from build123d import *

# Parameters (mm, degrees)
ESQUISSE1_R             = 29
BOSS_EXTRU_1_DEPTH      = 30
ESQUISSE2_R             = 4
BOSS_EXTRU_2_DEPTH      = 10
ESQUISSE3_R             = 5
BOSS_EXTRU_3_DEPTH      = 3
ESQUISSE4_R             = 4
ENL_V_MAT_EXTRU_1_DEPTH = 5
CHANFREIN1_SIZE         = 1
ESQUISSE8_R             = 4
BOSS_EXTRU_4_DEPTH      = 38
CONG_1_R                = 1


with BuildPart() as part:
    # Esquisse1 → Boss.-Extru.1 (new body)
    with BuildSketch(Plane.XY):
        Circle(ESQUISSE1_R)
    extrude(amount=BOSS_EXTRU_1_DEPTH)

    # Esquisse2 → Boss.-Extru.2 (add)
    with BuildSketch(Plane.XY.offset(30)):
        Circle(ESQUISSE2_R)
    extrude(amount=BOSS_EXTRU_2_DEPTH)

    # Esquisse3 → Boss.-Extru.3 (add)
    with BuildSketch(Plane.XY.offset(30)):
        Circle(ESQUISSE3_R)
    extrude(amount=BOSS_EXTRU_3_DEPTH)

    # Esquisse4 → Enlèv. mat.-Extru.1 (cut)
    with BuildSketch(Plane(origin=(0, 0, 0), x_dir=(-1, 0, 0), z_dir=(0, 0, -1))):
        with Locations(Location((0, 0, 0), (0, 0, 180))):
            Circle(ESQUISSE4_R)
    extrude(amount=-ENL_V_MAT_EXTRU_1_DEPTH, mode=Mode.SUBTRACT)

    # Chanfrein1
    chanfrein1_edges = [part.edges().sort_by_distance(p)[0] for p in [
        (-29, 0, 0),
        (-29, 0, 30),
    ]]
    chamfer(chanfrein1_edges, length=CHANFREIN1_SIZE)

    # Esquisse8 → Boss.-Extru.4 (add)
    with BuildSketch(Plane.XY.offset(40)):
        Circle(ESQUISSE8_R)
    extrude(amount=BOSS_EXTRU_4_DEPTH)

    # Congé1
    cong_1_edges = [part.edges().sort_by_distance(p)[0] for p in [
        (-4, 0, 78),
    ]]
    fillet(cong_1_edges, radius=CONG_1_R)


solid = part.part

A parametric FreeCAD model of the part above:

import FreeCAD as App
import Part
import Sketcher


def edges_at(feature, points):
    """Names of the edges that pass closest to the given points."""
    edges = feature.Shape.Edges
    near = lambda p: min(range(len(edges)), key=lambda i: edges[i].distToShape(Part.Vertex(*p))[0])
    return sorted({f"Edge{near(p) + 1}" for p in points})

doc = App.newDocument("Part")
body = doc.addObject("PartDesign::Body", "Body")

sketch1 = doc.addObject("Sketcher::SketchObject", "Sketch")
body.addObject(sketch1)
sketch1.AttachmentSupport = (doc.XY_Plane, [""])
sketch1.MapMode = "FlatFace"
sketch1.addGeometry(Part.Circle(App.Vector(0, 0, 0), App.Vector(0, 0, 1), 29), False)
sketch1.addConstraint(Sketcher.Constraint("Coincident", 0, 3, -1, 1))
sketch1.addConstraint(Sketcher.Constraint("Diameter", 0, 58.0))
pad1 = doc.addObject("PartDesign::Pad", "Pad")
body.addObject(pad1)
pad1.Profile = sketch1
pad1.Length = 30

sketch2 = doc.addObject("Sketcher::SketchObject", "Sketch001")
body.addObject(sketch2)
sketch2.AttachmentSupport = (doc.XY_Plane, [""])
sketch2.MapMode = "FlatFace"
sketch2.AttachmentOffset = App.Placement(App.Vector(0, 0, 30), App.Rotation())
sketch2.addGeometry(Part.Circle(App.Vector(0, 0, 0), App.Vector(0, 0, 1), 4), False)
sketch2.addConstraint(Sketcher.Constraint("Coincident", 0, 3, -1, 1))
sketch2.addConstraint(Sketcher.Constraint("Diameter", 0, 8.0))
pad2 = doc.addObject("PartDesign::Pad", "Pad001")
body.addObject(pad2)
pad2.Profile = sketch2
pad2.Length = 10

sketch3 = doc.addObject("Sketcher::SketchObject", "Sketch002")
body.addObject(sketch3)
sketch3.AttachmentSupport = (doc.XY_Plane, [""])
sketch3.MapMode = "FlatFace"
sketch3.AttachmentOffset = App.Placement(App.Vector(0, 0, 30), App.Rotation())
sketch3.addGeometry(Part.Circle(App.Vector(0, 0, 0), App.Vector(0, 0, 1), 5), False)
sketch3.addConstraint(Sketcher.Constraint("Coincident", 0, 3, -1, 1))
sketch3.addConstraint(Sketcher.Constraint("Diameter", 0, 10.0))
pad3 = doc.addObject("PartDesign::Pad", "Pad002")
body.addObject(pad3)
pad3.Profile = sketch3
pad3.Length = 3

sketch4 = doc.addObject("Sketcher::SketchObject", "Sketch003")
body.addObject(sketch4)
sketch4.AttachmentSupport = (doc.XY_Plane, [""])
sketch4.MapMode = "FlatFace"
sketch4.addGeometry(Part.Circle(App.Vector(0, 0, 0), App.Vector(0, 0, 1), 4), False)
sketch4.addConstraint(Sketcher.Constraint("Coincident", 0, 3, -1, 1))
sketch4.addConstraint(Sketcher.Constraint("Diameter", 0, 8.0))
pocket1 = doc.addObject("PartDesign::Pocket", "Pocket")
body.addObject(pocket1)
pocket1.Profile = sketch4
pocket1.Length = 5
pocket1.Reversed = True
doc.recompute()

chamfer = doc.addObject("PartDesign::Chamfer", "Chamfer")
body.addObject(chamfer)
chamfer.Base = (pocket1, edges_at(pocket1, [(-29, 0, 0), (-29, 0, 30)]))
chamfer.Size = 1

sketch5 = doc.addObject("Sketcher::SketchObject", "Sketch004")
body.addObject(sketch5)
sketch5.AttachmentSupport = (doc.XY_Plane, [""])
sketch5.MapMode = "FlatFace"
sketch5.AttachmentOffset = App.Placement(App.Vector(0, 0, 40), App.Rotation())
sketch5.addGeometry(Part.Circle(App.Vector(0, 0, 0), App.Vector(0, 0, 1), 4), False)
sketch5.addConstraint(Sketcher.Constraint("Coincident", 0, 3, -1, 1))
sketch5.addConstraint(Sketcher.Constraint("Diameter", 0, 8.0))
pad4 = doc.addObject("PartDesign::Pad", "Pad003")
body.addObject(pad4)
pad4.Profile = sketch5
pad4.Length = 38
doc.recompute()

fillet = doc.addObject("PartDesign::Fillet", "Fillet")
body.addObject(fillet)
fillet.Base = (pad4, edges_at(pad4, [(-4, 0, 78)]))
fillet.Radius = 1

doc.recompute()
